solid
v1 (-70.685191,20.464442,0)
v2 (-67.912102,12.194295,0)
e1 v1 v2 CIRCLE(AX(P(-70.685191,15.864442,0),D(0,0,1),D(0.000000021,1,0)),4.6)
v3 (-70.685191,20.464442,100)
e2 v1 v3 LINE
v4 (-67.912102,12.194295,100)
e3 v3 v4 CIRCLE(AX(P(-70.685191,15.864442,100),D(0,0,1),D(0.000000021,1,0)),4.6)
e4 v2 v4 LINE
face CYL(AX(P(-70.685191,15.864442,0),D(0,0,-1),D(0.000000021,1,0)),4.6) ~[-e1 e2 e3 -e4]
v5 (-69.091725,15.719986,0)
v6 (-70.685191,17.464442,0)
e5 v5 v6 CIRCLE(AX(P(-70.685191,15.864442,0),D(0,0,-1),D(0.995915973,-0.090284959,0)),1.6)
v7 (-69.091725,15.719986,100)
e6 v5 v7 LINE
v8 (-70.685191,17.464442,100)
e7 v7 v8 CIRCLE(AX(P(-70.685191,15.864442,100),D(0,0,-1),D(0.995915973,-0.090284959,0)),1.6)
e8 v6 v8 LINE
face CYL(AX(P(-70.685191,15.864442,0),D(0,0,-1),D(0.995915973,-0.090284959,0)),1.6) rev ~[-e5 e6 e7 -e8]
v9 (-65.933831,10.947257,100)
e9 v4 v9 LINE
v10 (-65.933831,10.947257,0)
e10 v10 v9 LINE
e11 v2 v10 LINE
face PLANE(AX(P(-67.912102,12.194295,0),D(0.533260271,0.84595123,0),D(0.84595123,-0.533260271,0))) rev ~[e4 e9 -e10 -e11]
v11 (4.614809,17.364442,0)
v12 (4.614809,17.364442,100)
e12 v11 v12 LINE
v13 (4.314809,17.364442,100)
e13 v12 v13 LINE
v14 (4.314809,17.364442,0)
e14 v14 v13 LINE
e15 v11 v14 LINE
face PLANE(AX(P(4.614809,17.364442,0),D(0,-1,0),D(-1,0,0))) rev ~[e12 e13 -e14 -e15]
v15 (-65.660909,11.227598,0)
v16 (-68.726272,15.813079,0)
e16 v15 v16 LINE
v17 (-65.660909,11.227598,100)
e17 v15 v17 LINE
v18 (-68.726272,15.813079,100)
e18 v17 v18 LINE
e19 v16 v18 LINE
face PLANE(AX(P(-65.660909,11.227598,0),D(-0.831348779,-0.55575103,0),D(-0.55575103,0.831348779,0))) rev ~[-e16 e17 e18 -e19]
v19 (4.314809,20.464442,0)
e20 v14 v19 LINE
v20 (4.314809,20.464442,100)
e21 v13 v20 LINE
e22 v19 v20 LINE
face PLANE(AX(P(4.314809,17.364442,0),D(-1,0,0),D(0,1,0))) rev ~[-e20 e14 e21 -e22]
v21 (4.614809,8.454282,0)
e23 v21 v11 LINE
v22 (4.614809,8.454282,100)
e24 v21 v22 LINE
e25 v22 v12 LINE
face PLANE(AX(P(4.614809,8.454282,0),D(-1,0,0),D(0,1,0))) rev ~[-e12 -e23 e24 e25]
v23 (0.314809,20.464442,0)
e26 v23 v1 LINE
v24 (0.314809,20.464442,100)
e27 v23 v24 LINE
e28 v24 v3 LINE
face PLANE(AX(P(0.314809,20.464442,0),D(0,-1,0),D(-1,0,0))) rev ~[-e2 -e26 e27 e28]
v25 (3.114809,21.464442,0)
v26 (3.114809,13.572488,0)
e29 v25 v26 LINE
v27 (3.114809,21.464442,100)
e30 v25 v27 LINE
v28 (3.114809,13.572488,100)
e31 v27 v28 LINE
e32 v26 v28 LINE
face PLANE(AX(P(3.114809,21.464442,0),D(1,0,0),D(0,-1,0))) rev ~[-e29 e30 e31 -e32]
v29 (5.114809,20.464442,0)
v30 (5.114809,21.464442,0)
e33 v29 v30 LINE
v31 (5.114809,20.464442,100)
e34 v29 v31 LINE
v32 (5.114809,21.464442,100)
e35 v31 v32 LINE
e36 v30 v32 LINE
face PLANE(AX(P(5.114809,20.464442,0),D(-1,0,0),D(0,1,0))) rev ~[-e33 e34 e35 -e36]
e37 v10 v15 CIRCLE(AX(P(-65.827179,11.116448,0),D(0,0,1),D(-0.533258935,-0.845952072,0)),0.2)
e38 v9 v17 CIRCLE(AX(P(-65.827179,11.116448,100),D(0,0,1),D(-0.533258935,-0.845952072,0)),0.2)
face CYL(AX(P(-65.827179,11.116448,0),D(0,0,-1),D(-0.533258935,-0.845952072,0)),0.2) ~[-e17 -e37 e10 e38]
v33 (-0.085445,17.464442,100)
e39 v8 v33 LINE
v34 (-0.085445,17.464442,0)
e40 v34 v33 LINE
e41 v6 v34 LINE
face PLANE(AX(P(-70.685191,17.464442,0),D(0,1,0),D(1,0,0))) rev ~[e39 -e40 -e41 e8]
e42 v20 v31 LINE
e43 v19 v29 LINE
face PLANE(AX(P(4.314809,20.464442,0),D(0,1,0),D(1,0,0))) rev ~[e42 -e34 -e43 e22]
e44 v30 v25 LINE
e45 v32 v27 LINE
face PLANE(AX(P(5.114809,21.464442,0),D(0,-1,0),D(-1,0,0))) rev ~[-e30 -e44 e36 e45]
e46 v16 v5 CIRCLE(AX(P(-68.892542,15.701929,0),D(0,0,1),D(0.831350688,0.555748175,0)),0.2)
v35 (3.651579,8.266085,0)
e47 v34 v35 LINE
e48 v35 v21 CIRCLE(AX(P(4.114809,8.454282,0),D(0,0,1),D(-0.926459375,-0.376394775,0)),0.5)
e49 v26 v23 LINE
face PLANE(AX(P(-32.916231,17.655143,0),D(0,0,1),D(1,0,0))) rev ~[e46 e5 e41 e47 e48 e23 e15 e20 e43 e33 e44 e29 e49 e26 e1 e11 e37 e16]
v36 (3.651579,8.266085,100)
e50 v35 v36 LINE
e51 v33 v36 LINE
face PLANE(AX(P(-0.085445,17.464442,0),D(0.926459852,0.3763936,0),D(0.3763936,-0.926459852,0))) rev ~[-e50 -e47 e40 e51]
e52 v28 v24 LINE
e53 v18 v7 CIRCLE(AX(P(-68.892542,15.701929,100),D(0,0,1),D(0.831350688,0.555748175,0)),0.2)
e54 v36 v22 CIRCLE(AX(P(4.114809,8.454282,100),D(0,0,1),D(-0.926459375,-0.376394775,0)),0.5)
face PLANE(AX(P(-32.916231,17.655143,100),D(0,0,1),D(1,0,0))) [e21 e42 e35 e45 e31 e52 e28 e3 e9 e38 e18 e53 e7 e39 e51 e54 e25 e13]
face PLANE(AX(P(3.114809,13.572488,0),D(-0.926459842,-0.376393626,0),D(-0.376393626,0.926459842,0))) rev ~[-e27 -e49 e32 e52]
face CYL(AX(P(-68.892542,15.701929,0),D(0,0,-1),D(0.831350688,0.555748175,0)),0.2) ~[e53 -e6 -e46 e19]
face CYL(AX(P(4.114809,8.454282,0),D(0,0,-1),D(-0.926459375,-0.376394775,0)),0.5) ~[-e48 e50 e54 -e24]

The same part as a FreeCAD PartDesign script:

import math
import FreeCAD as App
import Part
import Sketcher
Q = App.Units.Quantity

doc = App.newDocument("Part")
body = doc.addObject("PartDesign::Body", "Body")

# Sketch on XY plane
sketch1 = body.newObject("Sketcher::SketchObject", "Sketch")
sketch1.AttachmentSupport = (doc.getObject("XY_Plane"), [""])
sketch1.MapMode = "FlatFace"
sketch1.addGeometry([
    Part.LineSegment(App.Vector(-70.685191, 17.464442, 0), App.Vector(-0.085445, 17.464442, 0)),  # 0
    Part.LineSegment(App.Vector(-0.085445, 17.464442, 0), App.Vector(3.651579, 8.266085, 0)),  # 1
    Part.ArcOfCircle(Part.Circle(App.Vector(4.114809, 8.454282, 0), App.Vector(0, 0, 1), 0.5), math.radians(-157.889455), math.radians(-0.000051)),  # 2
    Part.LineSegment(App.Vector(4.614809, 8.454282, 0), App.Vector(4.614809, 17.364442, 0)),  # 3
    Part.LineSegment(App.Vector(4.614809, 17.364442, 0), App.Vector(4.314809, 17.364442, 0)),  # 4
    Part.LineSegment(App.Vector(4.314809, 17.364442, 0), App.Vector(4.314809, 20.464442, 0)),  # 5
    Part.LineSegment(App.Vector(4.314809, 20.464442, 0), App.Vector(5.114809, 20.464442, 0)),  # 6
    Part.LineSegment(App.Vector(5.114809, 20.464442, 0), App.Vector(5.114809, 21.464442, 0)),  # 7
    Part.LineSegment(App.Vector(5.114809, 21.464442, 0), App.Vector(3.114809, 21.464442, 0)),  # 8
    Part.LineSegment(App.Vector(3.114809, 21.464442, 0), App.Vector(3.114809, 13.572488, 0)),  # 9
    Part.LineSegment(App.Vector(3.114809, 13.572488, 0), App.Vector(0.314809, 20.464442, 0)),  # 10
    Part.LineSegment(App.Vector(0.314809, 20.464442, 0), App.Vector(-70.685191, 20.464442, 0)),  # 11
    Part.ArcOfCircle(Part.Circle(App.Vector(-70.685191, 15.864442, 0), App.Vector(0, 0, 1), 4.6), math.radians(89.999999), math.radians(307.07396)),  # 12
    Part.LineSegment(App.Vector(-67.912102, 12.194295, 0), App.Vector(-65.933831, 10.947257, 0)),  # 13
    Part.ArcOfCircle(Part.Circle(App.Vector(-65.827179, 11.116448, 0), App.Vector(0, 0, 1), 0.2), math.radians(-122.225914), math.radians(33.762441)),  # 14
    Part.LineSegment(App.Vector(-65.660909, 11.227598, 0), App.Vector(-68.726272, 15.813079, 0)),  # 15
    Part.ArcOfCircle(Part.Circle(App.Vector(-68.892542, 15.701929, 0), App.Vector(0, 0, 1), 0.2), math.radians(33.762263), math.radians(174.820129)),  # 16
    Part.ArcOfCircle(Part.Circle(App.Vector(-70.685191, 15.864442, 0), App.Vector(0, 0, 1), 1.6), math.radians(90.000014), math.radians(354.819999)),  # 17
], False)
sketch1.addConstraint([
    Sketcher.Constraint("Coincident", 0, 2, 1, 1),
    Sketcher.Constraint("Tangent", 1, 2, 2, 1),
    Sketcher.Constraint("Tangent", 2, 2, 3, 1),
    Sketcher.Constraint("Coincident", 3, 2, 4, 1),
    Sketcher.Constraint("Coincident", 4, 2, 5, 1),
    Sketcher.Constraint("Coincident", 5, 2, 6, 1),
    Sketcher.Constraint("Coincident", 6, 2, 7, 1),
    Sketcher.Constraint("Coincident", 7, 2, 8, 1),
    Sketcher.Constraint("Coincident", 8, 2, 9, 1),
    Sketcher.Constraint("Coincident", 9, 2, 10, 1),
    Sketcher.Constraint("Coincident", 10, 2, 11, 1),
    Sketcher.Constraint("Tangent", 11, 2, 12, 1),
    Sketcher.Constraint("Coincident", 12, 2, 13, 1),
    Sketcher.Constraint("Tangent", 13, 2, 14, 1),
    Sketcher.Constraint("Tangent", 14, 2, 15, 1),
    Sketcher.Constraint("Coincident", 15, 2, 16, 1),
    Sketcher.Constraint("Coincident", 16, 2, 17, 2),
    Sketcher.Constraint("Tangent", 17, 1, 0, 1),
    Sketcher.Constraint("Horizontal", 0),
    Sketcher.Constraint("Vertical", 3),
    Sketcher.Constraint("Horizontal", 4),
    Sketcher.Constraint("Vertical", 5),
    Sketcher.Constraint("Horizontal", 6),
    Sketcher.Constraint("Vertical", 7),
    Sketcher.Constraint("Horizontal", 8),
    Sketcher.Constraint("Vertical", 9),
    Sketcher.Constraint("Horizontal", 11),
    Sketcher.Constraint("Coincident", 17, 3, 12, 3),
    Sketcher.Constraint("Equal", 14, 16),
    Sketcher.Constraint("Parallel", 1, 10),
    Sketcher.Constraint("Horizontal", 6, 2, 10, 2),
    Sketcher.Constraint("Radius", 2, Q("0.5 mm")),
    Sketcher.Constraint("Radius", 12, Q("4.6 mm")),
    Sketcher.Constraint("Radius", 14, Q("0.2 mm")),
    Sketcher.Constraint("Radius", 17, Q("1.6 mm")),
    Sketcher.Constraint("DistanceX", 8, 2, 8, 1, Q("2 mm")),
    Sketcher.Constraint("DistanceX", 11, 2, 11, 1, Q("71 mm")),
    Sketcher.Constraint("DistanceY", 7, 1, 7, 2, Q("1 mm")),
    Sketcher.Constraint("DistanceX", 4, 2, 4, 1, Q("0.3 mm")),
    Sketcher.Constraint("DistanceX", 6, 1, 6, 2, Q("0.8 mm")),
    Sketcher.Constraint("DistanceY", 5, 1, 5, 2, Q("3.1 mm")),
    Sketcher.Constraint("DistanceX", 10, 2, 5, 2, Q("4 mm")),
    Sketcher.Constraint("Distance", 1, Q("9.9285 mm")),
    Sketcher.Constraint("DistanceY", 3, 1, 3, 2, Q("8.91016 mm")),
    Sketcher.Constraint("DistanceY", -1, 1, 14, 2, Q("11.227598 mm")),
    Sketcher.Constraint("DistanceX", -1, 1, 2, 3, Q("4.114809 mm")),
    Sketcher.Constraint("DistanceY", -1, 1, 12, 3, Q("15.864442 mm")),
    Sketcher.Constraint("DistanceX", 14, 3, -1, 1, Q("65.827179 mm")),
    Sketcher.Constraint("DistanceX", 16, 3, -1, 1, Q("68.892542 mm")),
    Sketcher.Constraint("DistanceX", 13, 2, -1, 1, Q("65.933831 mm")),
    Sketcher.Constraint("DistanceX", 15, 2, -1, 1, Q("68.726272 mm")),
    Sketcher.Constraint("DistanceY", 12, 2, 16, 2, Q("3.525691 mm")),
])
pad1 = body.newObject("PartDesign::Pad", "Pad")
pad1.Profile = sketch1
pad1.Length = 100

doc.recompute()
